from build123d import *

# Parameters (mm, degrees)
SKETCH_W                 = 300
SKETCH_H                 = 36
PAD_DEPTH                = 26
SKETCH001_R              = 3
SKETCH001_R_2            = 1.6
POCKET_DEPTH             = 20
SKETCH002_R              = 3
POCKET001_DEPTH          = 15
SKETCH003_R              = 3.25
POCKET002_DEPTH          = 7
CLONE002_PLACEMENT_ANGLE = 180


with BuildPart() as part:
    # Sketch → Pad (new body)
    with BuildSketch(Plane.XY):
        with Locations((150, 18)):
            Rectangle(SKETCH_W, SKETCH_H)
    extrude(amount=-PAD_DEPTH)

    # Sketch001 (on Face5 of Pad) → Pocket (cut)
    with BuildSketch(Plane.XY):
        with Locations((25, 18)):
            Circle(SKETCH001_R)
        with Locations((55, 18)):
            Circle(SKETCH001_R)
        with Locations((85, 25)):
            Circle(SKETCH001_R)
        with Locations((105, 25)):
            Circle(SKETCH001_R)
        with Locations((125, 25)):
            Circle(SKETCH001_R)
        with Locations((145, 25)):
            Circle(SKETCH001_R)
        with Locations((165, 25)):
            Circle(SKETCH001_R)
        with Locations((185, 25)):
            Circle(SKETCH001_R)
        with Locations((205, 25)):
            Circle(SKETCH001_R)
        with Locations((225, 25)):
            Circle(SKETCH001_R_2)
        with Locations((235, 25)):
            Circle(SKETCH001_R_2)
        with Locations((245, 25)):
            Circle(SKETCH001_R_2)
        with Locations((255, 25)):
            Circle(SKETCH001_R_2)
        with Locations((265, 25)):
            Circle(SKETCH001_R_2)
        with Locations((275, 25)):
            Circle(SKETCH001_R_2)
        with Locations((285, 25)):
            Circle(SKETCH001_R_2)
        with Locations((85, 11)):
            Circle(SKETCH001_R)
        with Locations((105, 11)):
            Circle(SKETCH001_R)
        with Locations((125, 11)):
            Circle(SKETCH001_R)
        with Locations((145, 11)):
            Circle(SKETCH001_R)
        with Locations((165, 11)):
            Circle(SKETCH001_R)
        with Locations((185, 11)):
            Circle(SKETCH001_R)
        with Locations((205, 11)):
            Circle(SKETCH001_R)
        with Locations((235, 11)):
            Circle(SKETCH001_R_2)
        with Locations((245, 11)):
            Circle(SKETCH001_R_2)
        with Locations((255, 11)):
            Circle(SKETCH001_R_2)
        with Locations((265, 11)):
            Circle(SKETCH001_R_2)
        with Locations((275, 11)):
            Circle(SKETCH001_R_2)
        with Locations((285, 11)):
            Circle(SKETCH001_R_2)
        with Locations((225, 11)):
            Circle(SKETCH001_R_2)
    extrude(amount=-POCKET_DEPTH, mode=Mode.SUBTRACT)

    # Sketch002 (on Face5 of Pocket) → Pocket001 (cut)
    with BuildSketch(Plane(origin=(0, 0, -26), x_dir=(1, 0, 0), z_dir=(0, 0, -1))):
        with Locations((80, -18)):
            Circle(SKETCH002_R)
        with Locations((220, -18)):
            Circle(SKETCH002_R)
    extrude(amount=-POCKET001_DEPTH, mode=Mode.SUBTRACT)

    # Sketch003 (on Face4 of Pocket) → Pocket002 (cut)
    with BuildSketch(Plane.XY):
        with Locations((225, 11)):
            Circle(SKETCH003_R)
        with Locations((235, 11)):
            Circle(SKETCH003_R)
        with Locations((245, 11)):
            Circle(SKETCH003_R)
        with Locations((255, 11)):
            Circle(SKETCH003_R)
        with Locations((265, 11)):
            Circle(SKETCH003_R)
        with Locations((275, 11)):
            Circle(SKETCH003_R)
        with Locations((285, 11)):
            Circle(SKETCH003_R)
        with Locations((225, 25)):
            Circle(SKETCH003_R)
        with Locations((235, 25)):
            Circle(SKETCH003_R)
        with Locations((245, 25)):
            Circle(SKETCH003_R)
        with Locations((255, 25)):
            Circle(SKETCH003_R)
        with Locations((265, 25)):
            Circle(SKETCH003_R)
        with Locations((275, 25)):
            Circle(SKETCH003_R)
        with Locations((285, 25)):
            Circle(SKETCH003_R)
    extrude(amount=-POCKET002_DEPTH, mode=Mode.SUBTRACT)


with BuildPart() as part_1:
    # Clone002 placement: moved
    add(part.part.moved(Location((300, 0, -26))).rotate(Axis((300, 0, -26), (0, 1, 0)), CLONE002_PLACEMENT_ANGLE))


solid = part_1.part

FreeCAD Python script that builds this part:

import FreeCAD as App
import Part
import Sketcher

V = App.Vector
Q = App.Units.Quantity

doc = App.newDocument("Part")
params = doc.addObject("Spreadsheet::Sheet", "Params")
for row, (alias, value) in enumerate([
    ("sketch1_width", "300 mm"),
    ("sketch1_height", "36 mm"),
    ("pad1_length", "26 mm"),
    ("sketch2_diameter", "6 mm"),
    ("sketch2_diameter2", "3.2 mm"),
    ("pocket1_length", "20 mm"),
    ("sketch3_diameter", "6 mm"),
    ("pocket2_length", "15 mm"),
    ("sketch4_diameter", "6.5 mm"),
    ("pocket3_length", "7 mm"),
], start=1):
    params.set(f"A{row}", alias)
    params.set(f"B{row}", "=" + value)
    params.setAlias(f"B{row}", alias)

body = doc.addObject("PartDesign::Body", "Body")

# Sketch on XY plane
sketch1 = body.newObject("Sketcher::SketchObject", "Sketch")
sketch1.AttachmentSupport = (doc.getObject("XY_Plane"), [""])
sketch1.MapMode = "FlatFace"
sketch1.addGeometry(Part.LineSegment(V(0, 36, 0), V(0, 0, 0)), False)
sketch1.addGeometry(Part.LineSegment(V(0, 0, 0), V(300, 0, 0)), False)
sketch1.addGeometry(Part.LineSegment(V(300, 0, 0), V(300, 36, 0)), False)
sketch1.addGeometry(Part.LineSegment(V(300, 36, 0), V(0, 36, 0)), False)
sketch1.addConstraint(Sketcher.Constraint("Coincident", 0, 2, 1, 1))
sketch1.addConstraint(Sketcher.Constraint("Coincident", 1, 2, 2, 1))
sketch1.addConstraint(Sketcher.Constraint("Coincident", 2, 2, 3, 1))
sketch1.addConstraint(Sketcher.Constraint("Coincident", 3, 2, 0, 1))
sketch1.addConstraint(Sketcher.Constraint("Vertical", 0))
sketch1.addConstraint(Sketcher.Constraint("Horizontal", 1))
sketch1.addConstraint(Sketcher.Constraint("Vertical", 2))
sketch1.addConstraint(Sketcher.Constraint("Horizontal", 3))
sketch1.addConstraint(Sketcher.Constraint("Coincident", 0, 2, -1, 1))
sketch1.addConstraint(Sketcher.Constraint("DistanceX", 1, 1, 1, 2, Q("300 mm")))
sketch1.addConstraint(Sketcher.Constraint("DistanceY", 0, 2, 0, 1, Q("36 mm")))
sketch1.setExpression("Constraints[9]", "Params.sketch1_width")
sketch1.setExpression("Constraints[10]", "Params.sketch1_height")
pad1 = body.newObject("PartDesign::Pad", "Pad")
pad1.Profile = sketch1
pad1.setExpression("Length", "Params.pad1_length")
pad1.Reversed = True

# Sketch on XY plane
sketch2 = body.newObject("Sketcher::SketchObject", "Sketch001")
sketch2.AttachmentSupport = (doc.getObject("XY_Plane"), [""])
sketch2.MapMode = "FlatFace"
sketch2.addGeometry(Part.Circle(V(25, 18, 0), V(0, 0, 1), 3), False)
sketch2.addGeometry(Part.Circle(V(55, 18, 0), V(0, 0, 1), 3), False)
sketch2.addGeometry(Part.Circle(V(85, 25, 0), V(0, 0, 1), 3), False)
sketch2.addGeometry(Part.Circle(V(105, 25, 0), V(0, 0, 1), 3), False)
sketch2.addGeometry(Part.Circle(V(125, 25, 0), V(0, 0, 1), 3), False)
sketch2.addGeometry(Part.Circle(V(145, 25, 0), V(0, 0, 1), 3), False)
sketch2.addGeometry(Part.Circle(V(165, 25, 0), V(0, 0, 1), 3), False)
sketch2.addGeometry(Part.Circle(V(185, 25, 0), V(0, 0, 1), 3), False)
sketch2.addGeometry(Part.Circle(V(205, 25, 0), V(0, 0, 1), 3), False)
sketch2.addGeometry(Part.Circle(V(225, 25, 0), V(0, 0, 1), 1.6), False)
sketch2.addGeometry(Part.Circle(V(235, 25, 0), V(0, 0, 1), 1.6), False)
sketch2.addGeometry(Part.Circle(V(245, 25, 0), V(0, 0, 1), 1.6), False)
sketch2.addGeometry(Part.Circle(V(255, 25, 0), V(0, 0, 1), 1.6), False)
sketch2.addGeometry(Part.Circle(V(265, 25, 0), V(0, 0, 1), 1.6), False)
sketch2.addGeometry(Part.Circle(V(275, 25, 0), V(0, 0, 1), 1.6), False)
sketch2.addGeometry(Part.Circle(V(285, 25, 0), V(0, 0, 1), 1.6), False)
sketch2.addGeometry(Part.Circle(V(85, 11, 0), V(0, 0, 1), 3), False)
sketch2.addGeometry(Part.Circle(V(105, 11, 0), V(0, 0, 1), 3), False)
sketch2.addGeometry(Part.Circle(V(125, 11, 0), V(0, 0, 1), 3), False)
sketch2.addGeometry(Part.Circle(V(145, 11, 0), V(0, 0, 1), 3), False)
sketch2.addGeometry(Part.Circle(V(165, 11, 0), V(0, 0, 1), 3), False)
sketch2.addGeometry(Part.Circle(V(185, 11, 0), V(0, 0, 1), 3), False)
sketch2.addGeometry(Part.Circle(V(205, 11, 0), V(0, 0, 1), 3), False)
sketch2.addGeometry(Part.Circle(V(235, 11, 0), V(0, 0, 1), 1.6), False)
sketch2.addGeometry(Part.Circle(V(245, 11, 0), V(0, 0, 1), 1.6), False)
sketch2.addGeometry(Part.Circle(V(255, 11, 0), V(0, 0, 1), 1.6), False)
sketch2.addGeometry(Part.Circle(V(265, 11, 0), V(0, 0, 1), 1.6), False)
sketch2.addGeometry(Part.Circle(V(275, 11, 0), V(0, 0, 1), 1.6), False)
sketch2.addGeometry(Part.Circle(V(285, 11, 0), V(0, 0, 1), 1.6), False)
sketch2.addGeometry(Part.Circle(V(225, 11, 0), V(0, 0, 1), 1.6), False)
sketch2.addConstraint(Sketcher.Constraint("Equal", 0, 1))
sketch2.addConstraint(Sketcher.Constraint("Equal", 1, 2))
sketch2.addConstraint(Sketcher.Constraint("Equal", 2, 3))
sketch2.addConstraint(Sketcher.Constraint("Equal", 3, 4))
sketch2.addConstraint(Sketcher.Constraint("Equal", 4, 5))
sketch2.addConstraint(Sketcher.Constraint("Equal", 5, 6))
sketch2.addConstraint(Sketcher.Constraint("Equal", 6, 7))
sketch2.addConstraint(Sketcher.Constraint("Equal", 7, 8))
sketch2.addConstraint(Sketcher.Constraint("Equal", 9, 10))
sketch2.addConstraint(Sketcher.Constraint("Equal", 10, 11))
sketch2.addConstraint(Sketcher.Constraint("Equal", 11, 12))
sketch2.addConstraint(Sketcher.Constraint("Equal", 12, 13))
sketch2.addConstraint(Sketcher.Constraint("Equal", 13, 14))
sketch2.addConstraint(Sketcher.Constraint("Equal", 14, 15))
sketch2.addConstraint(Sketcher.Constraint("Equal", 8, 16))
sketch2.addConstraint(Sketcher.Constraint("Equal", 16, 17))
sketch2.addConstraint(Sketcher.Constraint("Equal", 17, 18))
sketch2.addConstraint(Sketcher.Constraint("Equal", 18, 19))
sketch2.addConstraint(Sketcher.Constraint("Equal", 19, 20))
sketch2.addConstraint(Sketcher.Constraint("Equal", 20, 21))
sketch2.addConstraint(Sketcher.Constraint("Equal", 21, 22))
sketch2.addConstraint(Sketcher.Constraint("Equal", 15, 23))
sketch2.addConstraint(Sketcher.Constraint("Equal", 23, 24))
sketch2.addConstraint(Sketcher.Constraint("Equal", 24, 25))
sketch2.addConstraint(Sketcher.Constraint("Equal", 25, 26))
sketch2.addConstraint(Sketcher.Constraint("Equal", 26, 27))
sketch2.addConstraint(Sketcher.Constraint("Equal", 27, 28))
sketch2.addConstraint(Sketcher.Constraint("Equal", 28, 29))
sketch2.addConstraint(Sketcher.Constraint("Horizontal", 0, 3, 1, 3))
sketch2.addConstraint(Sketcher.Constraint("Horizontal", 2, 3, 3, 3))
sketch2.addConstraint(Sketcher.Constraint("Horizontal", 3, 3, 4, 3))
sketch2.addConstraint(Sketcher.Constraint("Horizontal", 4, 3, 5, 3))
sketch2.addConstraint(Sketcher.Constraint("Horizontal", 5, 3, 6, 3))
sketch2.addConstraint(Sketcher.Constraint("Horizontal", 6, 3, 7, 3))
sketch2.addConstraint(Sketcher.Constraint("Horizontal", 7, 3, 8, 3))
sketch2.addConstraint(Sketcher.Constraint("Horizontal", 8, 3, 9, 3))
sketch2.addConstraint(Sketcher.Constraint("Horizontal", 9, 3, 10, 3))
sketch2.addConstraint(Sketcher.Constraint("Horizontal", 10, 3, 11, 3))
sketch2.addConstraint(Sketcher.Constraint("Horizontal", 11, 3, 12, 3))
sketch2.addConstraint(Sketcher.Constraint("Horizontal", 12, 3, 13, 3))
sketch2.addConstraint(Sketcher.Constraint("Horizontal", 13, 3, 14, 3))
sketch2.addConstraint(Sketcher.Constraint("Horizontal", 14, 3, 15, 3))
sketch2.addConstraint(Sketcher.Constraint("Horizontal", 16, 3, 17, 3))
sketch2.addConstraint(Sketcher.Constraint("Horizontal", 17, 3, 18, 3))
sketch2.addConstraint(Sketcher.Constraint("Horizontal", 18, 3, 19, 3))
sketch2.addConstraint(Sketcher.Constraint("Horizontal", 19, 3, 20, 3))
sketch2.addConstraint(Sketcher.Constraint("Horizontal", 20, 3, 21, 3))
sketch2.addConstraint(Sketcher.Constraint("Horizontal", 21, 3, 22, 3))
sketch2.addConstraint(Sketcher.Constraint("Horizontal", 22, 3, 23, 3))
sketch2.addConstraint(Sketcher.Constraint("Horizontal", 23, 3, 24, 3))
sketch2.addConstraint(Sketcher.Constraint("Horizontal", 24, 3, 25, 3))
sketch2.addConstraint(Sketcher.Constraint("Horizontal", 25, 3, 26, 3))
sketch2.addConstraint(Sketcher.Constraint("Horizontal", 26, 3, 27, 3))
sketch2.addConstraint(Sketcher.Constraint("Horizontal", 27, 3, 28, 3))
sketch2.addConstraint(Sketcher.Constraint("Horizontal", 28, 3, 29, 3))
sketch2.addConstraint(Sketcher.Constraint("Vertical", 2, 3, 16, 3))
sketch2.addConstraint(Sketcher.Constraint("Vertical", 3, 3, 17, 3))
sketch2.addConstraint(Sketcher.Constraint("Vertical", 4, 3, 18, 3))
sketch2.addConstraint(Sketcher.Constraint("Vertical", 5, 3, 19, 3))
sketch2.addConstraint(Sketcher.Constraint("Vertical", 6, 3, 20, 3))
sketch2.addConstraint(Sketcher.Constraint("Vertical", 7, 3, 21, 3))
sketch2.addConstraint(Sketcher.Constraint("Vertical", 8, 3, 22, 3))
sketch2.addConstraint(Sketcher.Constraint("Vertical", 10, 3, 23, 3))
sketch2.addConstraint(Sketcher.Constraint("Vertical", 11, 3, 24, 3))
sketch2.addConstraint(Sketcher.Constraint("Vertical", 12, 3, 25, 3))
sketch2.addConstraint(Sketcher.Constraint("Vertical", 13, 3, 26, 3))
sketch2.addConstraint(Sketcher.Constraint("Vertical", 14, 3, 27, 3))
sketch2.addConstraint(Sketcher.Constraint("Vertical", 15, 3, 28, 3))
sketch2.addConstraint(Sketcher.Constraint("Vertical", 9, 3, 29, 3))
sketch2.addConstraint(Sketcher.Constraint("Diameter", 0, Q("6 mm")))
sketch2.addConstraint(Sketcher.Constraint("Diameter", 9, Q("3.2 mm")))
sketch2.addConstraint(Sketcher.Constraint("DistanceX", -1, 1, 0, 3, Q("25 mm")))
sketch2.addConstraint(Sketcher.Constraint("DistanceY", -1, 1, 0, 3, Q("18 mm")))
sketch2.addConstraint(Sketcher.Constraint("DistanceX", -1, 1, 1, 3, Q("55 mm")))
sketch2.addConstraint(Sketcher.Constraint("DistanceX", -1, 1, 2, 3, Q("85 mm")))
sketch2.addConstraint(Sketcher.Constraint("DistanceY", -1, 1, 2, 3, Q("25 mm")))
sketch2.addConstraint(Sketcher.Constraint("DistanceX", -1, 1, 3, 3, Q("105 mm")))
sketch2.addConstraint(Sketcher.Constraint("DistanceX", -1, 1, 4, 3, Q("125 mm")))
sketch2.addConstraint(Sketcher.Constraint("DistanceX", -1, 1, 5, 3, Q("145 mm")))
sketch2.addConstraint(Sketcher.Constraint("DistanceX", -1, 1, 6, 3, Q("165 mm")))
sketch2.addConstraint(Sketcher.Constraint("DistanceX", -1, 1, 7, 3, Q("185 mm")))
sketch2.addConstraint(Sketcher.Constraint("DistanceX", -1, 1, 8, 3, Q("205 mm")))
sketch2.addConstraint(Sketcher.Constraint("DistanceX", -1, 1, 9, 3, Q("225 mm")))
sketch2.addConstraint(Sketcher.Constraint("DistanceX", -1, 1, 10, 3, Q("235 mm")))
sketch2.addConstraint(Sketcher.Constraint("DistanceX", -1, 1, 11, 3, Q("245 mm")))
sketch2.addConstraint(Sketcher.Constraint("DistanceX", -1, 1, 12, 3, Q("255 mm")))
sketch2.addConstraint(Sketcher.Constraint("DistanceX", -1, 1, 13, 3, Q("265 mm")))
sketch2.addConstraint(Sketcher.Constraint("DistanceX", -1, 1, 14, 3, Q("275 mm")))
sketch2.addConstraint(Sketcher.Constraint("DistanceX", -1, 1, 15, 3, Q("285 mm")))
sketch2.addConstraint(Sketcher.Constraint("DistanceY", -1, 1, 16, 3, Q("11 mm")))
sketch2.setExpression("Constraints[69]", "Params.sketch2_diameter")
sketch2.setExpression("Constraints[70]", "Params.sketch2_diameter2")
pocket1 = body.newObject("PartDesign::Pocket", "Pocket")
pocket1.Profile = sketch2
pocket1.setExpression("Length", "Params.pocket1_length")

# Sketch on XY plane
sketch3 = body.newObject("Sketcher::SketchObject", "Sketch002")
sketch3.AttachmentSupport = (doc.getObject("XY_Plane"), [""])
sketch3.MapMode = "FlatFace"
sketch3.AttachmentOffset = App.Placement(V(0, 0, -26), App.Rotation())
sketch3.addGeometry(Part.Circle(V(80, 18, 0), V(0, 0, 1), 3), False)
sketch3.addGeometry(Part.Circle(V(220, 18, 0), V(0, 0, 1), 3), False)
sketch3.addConstraint(Sketcher.Constraint("Equal", 0, 1))
sketch3.addConstraint(Sketcher.Constraint("Horizontal", 0, 3, 1, 3))
sketch3.addConstraint(Sketcher.Constraint("Diameter", 0, Q("6 mm")))
sketch3.addConstraint(Sketcher.Constraint("DistanceX", -1, 1, 0, 3, Q("80 mm")))
sketch3.addConstraint(Sketcher.Constraint("DistanceY", -1, 1, 0, 3, Q("18 mm")))
sketch3.addConstraint(Sketcher.Constraint("DistanceX", -1, 1, 1, 3, Q("220 mm")))
sketch3.setExpression("Constraints[2]", "Params.sketch3_diameter")
pocket2 = body.newObject("PartDesign::Pocket", "Pocket001")
pocket2.Profile = sketch3
pocket2.setExpression("Length", "Params.pocket2_length")
pocket2.Reversed = True

# Sketch on XY plane
sketch4 = body.newObject("Sketcher::SketchObject", "Sketch003")
sketch4.AttachmentSupport = (doc.getObject("XY_Plane"), [""])
sketch4.MapMode = "FlatFace"
sketch4.addGeometry(Part.Circle(V(225, 11, 0), V(0, 0, 1), 3.25), False)
sketch4.addGeometry(Part.Circle(V(235, 11, 0), V(0, 0, 1), 3.25), False)
sketch4.addGeometry(Part.Circle(V(245, 11, 0), V(0, 0, 1), 3.25), False)
sketch4.addGeometry(Part.Circle(V(255, 11, 0), V(0, 0, 1), 3.25), False)
sketch4.addGeometry(Part.Circle(V(265, 11, 0), V(0, 0, 1), 3.25), False)
sketch4.addGeometry(Part.Circle(V(275, 11, 0), V(0, 0, 1), 3.25), False)
sketch4.addGeometry(Part.Circle(V(285, 11, 0), V(0, 0, 1), 3.25), False)
sketch4.addGeometry(Part.Circle(V(225, 25, 0), V(0, 0, 1), 3.25), False)
sketch4.addGeometry(Part.Circle(V(235, 25, 0), V(0, 0, 1), 3.25), False)
sketch4.addGeometry(Part.Circle(V(245, 25, 0), V(0, 0, 1), 3.25), False)
sketch4.addGeometry(Part.Circle(V(255, 25, 0), V(0, 0, 1), 3.25), False)
sketch4.addGeometry(Part.Circle(V(265, 25, 0), V(0, 0, 1), 3.25), False)
sketch4.addGeometry(Part.Circle(V(275, 25, 0), V(0, 0, 1), 3.25), False)
sketch4.addGeometry(Part.Circle(V(285, 25, 0), V(0, 0, 1), 3.25), False)
sketch4.addConstraint(Sketcher.Constraint("Equal", 0, 1))
sketch4.addConstraint(Sketcher.Constraint("Equal", 1, 2))
sketch4.addConstraint(Sketcher.Constraint("Equal", 2, 3))
sketch4.addConstraint(Sketcher.Constraint("Equal", 3, 4))
sketch4.addConstraint(Sketcher.Constraint("Equal", 4, 5))
sketch4.addConstraint(Sketcher.Constraint("Equal", 5, 6))
sketch4.addConstraint(Sketcher.Constraint("Equal", 6, 7))
sketch4.addConstraint(Sketcher.Constraint("Equal", 7, 8))
sketch4.addConstraint(Sketcher.Constraint("Equal", 8, 9))
sketch4.addConstraint(Sketcher.Constraint("Equal", 9, 10))
sketch4.addConstraint(Sketcher.Constraint("Equal", 10, 11))
sketch4.addConstraint(Sketcher.Constraint("Equal", 11, 12))
sketch4.addConstraint(Sketcher.Constraint("Equal", 12, 13))
sketch4.addConstraint(Sketcher.Constraint("Horizontal", 0, 3, 1, 3))
sketch4.addConstraint(Sketcher.Constraint("Horizontal", 1, 3, 2, 3))
sketch4.addConstraint(Sketcher.Constraint("Horizontal", 2, 3, 3, 3))
sketch4.addConstraint(Sketcher.Constraint("Horizontal", 3, 3, 4, 3))
sketch4.addConstraint(Sketcher.Constraint("Horizontal", 4, 3, 5, 3))
sketch4.addConstraint(Sketcher.Constraint("Horizontal", 5, 3, 6, 3))
sketch4.addConstraint(Sketcher.Constraint("Horizontal", 7, 3, 8, 3))
sketch4.addConstraint(Sketcher.Constraint("Horizontal", 8, 3, 9, 3))
sketch4.addConstraint(Sketcher.Constraint("Horizontal", 9, 3, 10, 3))
sketch4.addConstraint(Sketcher.Constraint("Horizontal", 10, 3, 11, 3))
sketch4.addConstraint(Sketcher.Constraint("Horizontal", 11, 3, 12, 3))
sketch4.addConstraint(Sketcher.Constraint("Horizontal", 12, 3, 13, 3))
sketch4.addConstraint(Sketcher.Constraint("Vertical", 0, 3, 7, 3))
sketch4.addConstraint(Sketcher.Constraint("Vertical", 1, 3, 8, 3))
sketch4.addConstraint(Sketcher.Constraint("Vertical", 2, 3, 9, 3))
sketch4.addConstraint(Sketcher.Constraint("Vertical", 3, 3, 10, 3))
sketch4.addConstraint(Sketcher.Constraint("Vertical", 4, 3, 11, 3))
sketch4.addConstraint(Sketcher.Constraint("Vertical", 5, 3, 12, 3))
sketch4.addConstraint(Sketcher.Constraint("Vertical", 6, 3, 13, 3))
sketch4.addConstraint(Sketcher.Constraint("Diameter", 0, Q("6.5 mm")))
sketch4.addConstraint(Sketcher.Constraint("DistanceX", -1, 1, 0, 3, Q("225 mm")))
sketch4.addConstraint(Sketcher.Constraint("DistanceY", -1, 1, 0, 3, Q("11 mm")))
sketch4.addConstraint(Sketcher.Constraint("DistanceX", -1, 1, 1, 3, Q("235 mm")))
sketch4.addConstraint(Sketcher.Constraint("DistanceX", -1, 1, 2, 3, Q("245 mm")))
sketch4.addConstraint(Sketcher.Constraint("DistanceX", -1, 1, 3, 3, Q("255 mm")))
sketch4.addConstraint(Sketcher.Constraint("DistanceX", -1, 1, 4, 3, Q("265 mm")))
sketch4.addConstraint(Sketcher.Constraint("DistanceX", -1, 1, 5, 3, Q("275 mm")))
sketch4.addConstraint(Sketcher.Constraint("DistanceX", -1, 1, 6, 3, Q("285 mm")))
sketch4.addConstraint(Sketcher.Constraint("DistanceY", -1, 1, 7, 3, Q("25 mm")))
sketch4.setExpression("Constraints[32]", "Params.sketch4_diameter")
pocket3 = body.newObject("PartDesign::Pocket", "Pocket002")
pocket3.Profile = sketch4
pocket3.setExpression("Length", "Params.pocket3_length")
body2 = doc.addObject("PartDesign::Body", "Body001")
doc.recompute()

body.Placement = App.Placement(V(300, 0, -26), App.Rotation(V(0, 1, 0), 180))
boolean = body2.newObject("PartDesign::Boolean", "Boolean")
boolean.Type = "Fuse"
boolean.addObjects([body])

doc.recompute()
